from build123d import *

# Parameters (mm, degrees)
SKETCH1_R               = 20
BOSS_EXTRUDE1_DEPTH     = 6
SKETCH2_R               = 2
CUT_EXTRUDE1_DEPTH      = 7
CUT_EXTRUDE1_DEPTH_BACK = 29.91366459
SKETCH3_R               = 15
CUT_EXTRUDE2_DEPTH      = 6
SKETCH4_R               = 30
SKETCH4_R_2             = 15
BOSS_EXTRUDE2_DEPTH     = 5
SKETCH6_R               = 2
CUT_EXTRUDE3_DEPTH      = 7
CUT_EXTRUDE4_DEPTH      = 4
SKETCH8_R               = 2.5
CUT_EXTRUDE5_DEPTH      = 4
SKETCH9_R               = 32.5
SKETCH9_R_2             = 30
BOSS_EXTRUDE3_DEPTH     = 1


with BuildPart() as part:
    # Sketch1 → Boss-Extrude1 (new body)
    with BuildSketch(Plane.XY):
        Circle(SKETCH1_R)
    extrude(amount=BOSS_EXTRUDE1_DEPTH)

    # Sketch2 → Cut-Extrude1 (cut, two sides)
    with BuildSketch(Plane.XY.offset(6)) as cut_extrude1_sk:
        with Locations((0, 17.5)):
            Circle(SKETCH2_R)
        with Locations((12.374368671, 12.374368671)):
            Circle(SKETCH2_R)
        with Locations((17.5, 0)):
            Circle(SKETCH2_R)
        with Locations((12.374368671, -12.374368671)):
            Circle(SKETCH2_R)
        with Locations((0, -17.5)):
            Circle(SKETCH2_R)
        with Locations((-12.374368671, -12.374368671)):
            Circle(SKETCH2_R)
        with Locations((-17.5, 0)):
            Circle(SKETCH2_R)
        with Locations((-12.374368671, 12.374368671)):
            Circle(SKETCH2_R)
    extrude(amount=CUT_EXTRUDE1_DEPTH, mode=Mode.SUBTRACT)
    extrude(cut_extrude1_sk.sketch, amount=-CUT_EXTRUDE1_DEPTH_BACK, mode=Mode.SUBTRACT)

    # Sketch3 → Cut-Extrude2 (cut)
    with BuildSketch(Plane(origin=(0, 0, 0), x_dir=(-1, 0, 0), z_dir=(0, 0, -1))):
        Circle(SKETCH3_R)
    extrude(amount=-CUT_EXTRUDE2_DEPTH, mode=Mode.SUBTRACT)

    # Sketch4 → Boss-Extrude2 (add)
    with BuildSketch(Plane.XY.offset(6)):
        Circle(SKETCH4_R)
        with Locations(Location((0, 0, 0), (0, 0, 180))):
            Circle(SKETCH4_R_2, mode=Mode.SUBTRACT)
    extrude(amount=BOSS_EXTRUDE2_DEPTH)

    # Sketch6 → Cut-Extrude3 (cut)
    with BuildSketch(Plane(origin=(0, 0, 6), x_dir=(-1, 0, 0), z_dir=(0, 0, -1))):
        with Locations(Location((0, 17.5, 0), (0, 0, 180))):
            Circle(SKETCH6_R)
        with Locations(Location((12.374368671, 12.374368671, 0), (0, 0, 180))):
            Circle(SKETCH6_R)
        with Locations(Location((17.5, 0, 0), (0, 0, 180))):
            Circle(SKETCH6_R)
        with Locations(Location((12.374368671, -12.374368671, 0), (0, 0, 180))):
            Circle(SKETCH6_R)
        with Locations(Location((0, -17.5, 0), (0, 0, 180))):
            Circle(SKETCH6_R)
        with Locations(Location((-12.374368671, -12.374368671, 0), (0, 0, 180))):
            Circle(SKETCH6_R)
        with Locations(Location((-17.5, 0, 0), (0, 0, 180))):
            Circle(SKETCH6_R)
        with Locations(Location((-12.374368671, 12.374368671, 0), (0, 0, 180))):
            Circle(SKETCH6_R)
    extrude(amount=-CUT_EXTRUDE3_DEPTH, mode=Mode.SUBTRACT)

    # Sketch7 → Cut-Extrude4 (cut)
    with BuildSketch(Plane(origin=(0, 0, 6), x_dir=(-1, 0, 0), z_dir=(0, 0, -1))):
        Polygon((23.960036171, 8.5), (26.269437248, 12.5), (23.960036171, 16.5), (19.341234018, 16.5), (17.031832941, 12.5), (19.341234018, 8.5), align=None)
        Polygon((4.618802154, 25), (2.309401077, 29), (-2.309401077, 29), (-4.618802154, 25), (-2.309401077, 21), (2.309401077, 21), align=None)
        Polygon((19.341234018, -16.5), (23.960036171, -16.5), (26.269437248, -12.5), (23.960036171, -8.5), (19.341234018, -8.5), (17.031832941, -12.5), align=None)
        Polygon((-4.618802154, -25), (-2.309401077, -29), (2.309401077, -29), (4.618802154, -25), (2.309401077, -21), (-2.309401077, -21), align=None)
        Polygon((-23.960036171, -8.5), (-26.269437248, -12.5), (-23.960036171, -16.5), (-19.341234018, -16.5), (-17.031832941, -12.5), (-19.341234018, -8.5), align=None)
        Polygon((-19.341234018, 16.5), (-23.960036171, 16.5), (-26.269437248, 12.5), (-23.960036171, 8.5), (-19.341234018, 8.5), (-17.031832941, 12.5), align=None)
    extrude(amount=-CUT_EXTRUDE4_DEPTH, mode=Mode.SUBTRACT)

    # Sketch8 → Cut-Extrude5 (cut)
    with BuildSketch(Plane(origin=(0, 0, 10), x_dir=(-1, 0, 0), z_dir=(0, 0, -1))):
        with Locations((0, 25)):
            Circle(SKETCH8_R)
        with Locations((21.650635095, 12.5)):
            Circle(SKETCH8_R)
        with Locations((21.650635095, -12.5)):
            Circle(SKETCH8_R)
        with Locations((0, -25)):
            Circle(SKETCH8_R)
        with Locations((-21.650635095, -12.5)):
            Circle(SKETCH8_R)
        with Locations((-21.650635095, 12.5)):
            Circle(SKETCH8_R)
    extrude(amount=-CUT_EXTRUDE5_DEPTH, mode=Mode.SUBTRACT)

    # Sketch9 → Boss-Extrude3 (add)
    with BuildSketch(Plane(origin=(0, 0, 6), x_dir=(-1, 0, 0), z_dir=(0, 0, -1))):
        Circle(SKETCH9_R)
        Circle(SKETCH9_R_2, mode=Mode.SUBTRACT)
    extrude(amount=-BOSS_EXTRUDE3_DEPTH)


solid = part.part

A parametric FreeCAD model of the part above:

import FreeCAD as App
import Part
import Sketcher

V = App.Vector
Q = App.Units.Quantity

doc = App.newDocument("Part")
body = doc.addObject("PartDesign::Body", "Body")

# Sketch on XY plane
sketch1 = doc.addObject("Sketcher::SketchObject", "Sketch")
body.addObject(sketch1)
sketch1.AttachmentSupport = (doc.XY_Plane, [""])
sketch1.MapMode = "FlatFace"
sketch1.addGeometry(Part.Circle(V(0, 0, 0), V(0, 0, 1), 20), False)
sketch1.addConstraint([
    Sketcher.Constraint("Coincident", 0, 3, -1, 1),
    Sketcher.Constraint("Diameter", 0, 40.0),
])
pad1 = doc.addObject("PartDesign::Pad", "Pad")
body.addObject(pad1)
pad1.Profile = sketch1
pad1.Length = 6

# Sketch on XY plane
sketch2 = doc.addObject("Sketcher::SketchObject", "Sketch001")
body.addObject(sketch2)
sketch2.AttachmentSupport = (doc.XY_Plane, [""])
sketch2.MapMode = "FlatFace"
sketch2.AttachmentOffset = App.Placement(V(0, 0, 6), App.Rotation())
sketch2.addGeometry([
    Part.Circle(V(0, 17.5, 0), V(0, 0, 1), 2),  # 0
    Part.Circle(V(12.4, 12.4, 0), V(0, 0, 1), 2),  # 1
    Part.Circle(V(17.5, 0, 0), V(0, 0, 1), 2),  # 2
    Part.Circle(V(12.4, -12.4, 0), V(0, 0, 1), 2),  # 3
    Part.Circle(V(0, -17.5, 0), V(0, 0, 1), 2),  # 4
    Part.Circle(V(-12.4, -12.4, 0), V(0, 0, 1), 2),  # 5
    Part.Circle(V(-17.5, 0, 0), V(0, 0, 1), 2),  # 6
    Part.Circle(V(-12.4, 12.4, 0), V(0, 0, 1), 2),  # 7
], False)
sketch2.addConstraint([
    Sketcher.Constraint("Equal", 0, 1),
    Sketcher.Constraint("Equal", 1, 2),
    Sketcher.Constraint("Equal", 2, 3),
    Sketcher.Constraint("Equal", 3, 4),
    Sketcher.Constraint("Equal", 4, 5),
    Sketcher.Constraint("Equal", 5, 6),
    Sketcher.Constraint("Equal", 6, 7),
    Sketcher.Constraint("Symmetric", 0, 3, 4, 3, -1, 1),
    Sketcher.Constraint("Symmetric", 1, 3, 5, 3, -1, 1),
    Sketcher.Constraint("Symmetric", 2, 3, 6, 3, -1, 1),
    Sketcher.Constraint("Symmetric", 3, 3, 7, 3, -1, 1),
    Sketcher.Constraint("Symmetric", 3, 3, 5, 3, -2),
    Sketcher.Constraint("PointOnObject", 0, 3, -2),
    Sketcher.Constraint("PointOnObject", 2, 3, -1),
    Sketcher.Constraint("Diameter", 0, 4.0),
    Sketcher.Constraint("DistanceY", 4, 3, 0, 3, 35.0),
    Sketcher.Constraint("DistanceX", -1, 1, 2, 3, 17.5),
    Sketcher.Constraint("DistanceX", -1, 1, 1, 3, 12.374369),
    Sketcher.Constraint("DistanceY", -1, 1, 1, 3, 12.374369),
])
pocket1 = doc.addObject("PartDesign::Pocket", "Pocket")
body.addObject(pocket1)
pocket1.Profile = sketch2
pocket1.Type = "ThroughAll"
pocket1.Midplane = True

# Sketch on XY plane
sketch3 = doc.addObject("Sketcher::SketchObject", "Sketch002")
body.addObject(sketch3)
sketch3.AttachmentSupport = (doc.XY_Plane, [""])
sketch3.MapMode = "FlatFace"
sketch3.addGeometry(Part.Circle(V(0, 0, 0), V(0, 0, 1), 15), False)
sketch3.addConstraint([
    Sketcher.Constraint("Coincident", 0, 3, -1, 1),
    Sketcher.Constraint("Diameter", 0, 30.0),
])
pocket2 = doc.addObject("PartDesign::Pocket", "Pocket001")
body.addObject(pocket2)
pocket2.Profile = sketch3
pocket2.Length = 6
pocket2.Reversed = True

# Sketch on XY plane
sketch4 = doc.addObject("Sketcher::SketchObject", "Sketch003")
body.addObject(sketch4)
sketch4.AttachmentSupport = (doc.XY_Plane, [""])
sketch4.MapMode = "FlatFace"
sketch4.AttachmentOffset = App.Placement(V(0, 0, 6), App.Rotation())
sketch4.addGeometry([
    Part.Circle(V(0, 0, 0), V(0, 0, 1), 30),
    Part.Circle(V(0, 0, 0), V(0, 0, 1), 15),
], False)
sketch4.addConstraint([
    Sketcher.Constraint("Coincident", 0, 3, -1, 1),
    Sketcher.Constraint("Coincident", 1, 3, -1, 1),
    Sketcher.Constraint("Diameter", 0, 60.0),
    Sketcher.Constraint("Diameter", 1, 30.0),
])
pad2 = doc.addObject("PartDesign::Pad", "Pad001")
body.addObject(pad2)
pad2.Profile = sketch4
pad2.Length = 5

# Sketch on XY plane
sketch5 = doc.addObject("Sketcher::SketchObject", "Sketch004")
body.addObject(sketch5)
sketch5.AttachmentSupport = (doc.XY_Plane, [""])
sketch5.MapMode = "FlatFace"
sketch5.AttachmentOffset = App.Placement(V(0, 0, 6), App.Rotation())
sketch5.addGeometry([
    Part.Circle(V(0, 17.5, 0), V(0, 0, 1), 2),  # 0
    Part.Circle(V(-12.4, 12.4, 0), V(0, 0, 1), 2),  # 1
    Part.Circle(V(-17.5, 0, 0), V(0, 0, 1), 2),  # 2
    Part.Circle(V(-12.4, -12.4, 0), V(0, 0, 1), 2),  # 3
    Part.Circle(V(0, -17.5, 0), V(0, 0, 1), 2),  # 4
    Part.Circle(V(12.4, -12.4, 0), V(0, 0, 1), 2),  # 5
    Part.Circle(V(17.5, 0, 0), V(0, 0, 1), 2),  # 6
    Part.Circle(V(12.4, 12.4, 0), V(0, 0, 1), 2),  # 7
], False)
sketch5.addConstraint([
    Sketcher.Constraint("Equal", 0, 1),
    Sketcher.Constraint("Equal", 1, 2),
    Sketcher.Constraint("Equal", 2, 3),
    Sketcher.Constraint("Equal", 3, 4),
    Sketcher.Constraint("Equal", 4, 5),
    Sketcher.Constraint("Equal", 5, 6),
    Sketcher.Constraint("Equal", 6, 7),
    Sketcher.Constraint("Symmetric", 0, 3, 4, 3, -1, 1),
    Sketcher.Constraint("Symmetric", 1, 3, 5, 3, -1, 1),
    Sketcher.Constraint("Symmetric", 2, 3, 6, 3, -1, 1),
    Sketcher.Constraint("Symmetric", 3, 3, 7, 3, -1, 1),
    Sketcher.Constraint("Symmetric", 3, 3, 5, 3, -2),
    Sketcher.Constraint("PointOnObject", 0, 3, -2),
    Sketcher.Constraint("PointOnObject", 2, 3, -1),
    Sketcher.Constraint("Diameter", 0, 4.0),
    Sketcher.Constraint("DistanceY", 4, 3, 0, 3, 35.0),
    Sketcher.Constraint("DistanceX", 2, 3, -1, 1, 17.5),
    Sketcher.Constraint("DistanceX", 1, 3, -1, 1, 12.374369),
    Sketcher.Constraint("DistanceY", -1, 1, 1, 3, 12.374369),
])
pocket3 = doc.addObject("PartDesign::Pocket", "Pocket002")
body.addObject(pocket3)
pocket3.Profile = sketch5
pocket3.Length = 7
pocket3.Reversed = True

# Sketch on XY plane
sketch6 = doc.addObject("Sketcher::SketchObject", "Sketch005")
body.addObject(sketch6)
sketch6.AttachmentSupport = (doc.XY_Plane, [""])
sketch6.MapMode = "FlatFace"
sketch6.AttachmentOffset = App.Placement(V(0, 0, 6), App.Rotation())
sketch6.addGeometry([
    Part.LineSegment(V(-24, 8.5, 0), V(-26.3, 12.5, 0)),  # 0
    Part.LineSegment(V(-26.3, 12.5, 0), V(-24, 16.5, 0)),  # 1
    Part.LineSegment(V(-24, 16.5, 0), V(-19.3, 16.5, 0)),  # 2
    Part.LineSegment(V(-19.3, 16.5, 0), V(-17, 12.5, 0)),  # 3
    Part.LineSegment(V(-17, 12.5, 0), V(-19.3, 8.5, 0)),  # 4
    Part.LineSegment(V(-19.3, 8.5, 0), V(-24, 8.5, 0)),  # 5
    Part.LineSegment(V(-4.6, 25, 0), V(-2.3, 29, 0)),  # 6
    Part.LineSegment(V(-2.3, 29, 0), V(2.3, 29, 0)),  # 7
    Part.LineSegment(V(2.3, 29, 0), V(4.6, 25, 0)),  # 8
    Part.LineSegment(V(4.6, 25, 0), V(2.3, 21, 0)),  # 9
    Part.LineSegment(V(2.3, 21, 0), V(-2.3, 21, 0)),  # 10
    Part.LineSegment(V(-2.3, 21, 0), V(-4.6, 25, 0)),  # 11
    Part.LineSegment(V(-19.3, -16.5, 0), V(-24, -16.5, 0)),  # 12
    Part.LineSegment(V(-24, -16.5, 0), V(-26.3, -12.5, 0)),  # 13
    Part.LineSegment(V(-26.3, -12.5, 0), V(-24, -8.5, 0)),  # 14
    Part.LineSegment(V(-24, -8.5, 0), V(-19.3, -8.5, 0)),  # 15
    Part.LineSegment(V(-19.3, -8.5, 0), V(-17, -12.5, 0)),  # 16
    Part.LineSegment(V(-17, -12.5, 0), V(-19.3, -16.5, 0)),  # 17
    Part.LineSegment(V(4.6, -25, 0), V(2.3, -29, 0)),  # 18
    Part.LineSegment(V(2.3, -29, 0), V(-2.3, -29, 0)),  # 19
    Part.LineSegment(V(-2.3, -29, 0), V(-4.6, -25, 0)),  # 20
    Part.LineSegment(V(-4.6, -25, 0), V(-2.3, -21, 0)),  # 21
    Part.LineSegment(V(-2.3, -21, 0), V(2.3, -21, 0)),  # 22
    Part.LineSegment(V(2.3, -21, 0), V(4.6, -25, 0)),  # 23
    Part.LineSegment(V(24, -8.5, 0), V(26.3, -12.5, 0)),  # 24
    Part.LineSegment(V(26.3, -12.5, 0), V(24, -16.5, 0)),  # 25
    Part.LineSegment(V(24, -16.5, 0), V(19.3, -16.5, 0)),  # 26
    Part.LineSegment(V(19.3, -16.5, 0), V(17, -12.5, 0)),  # 27
    Part.LineSegment(V(17, -12.5, 0), V(19.3, -8.5, 0)),  # 28
    Part.LineSegment(V(19.3, -8.5, 0), V(24, -8.5, 0)),  # 29
    Part.LineSegment(V(19.3, 16.5, 0), V(24, 16.5, 0)),  # 30
    Part.LineSegment(V(24, 16.5, 0), V(26.3, 12.5, 0)),  # 31
    Part.LineSegment(V(26.3, 12.5, 0), V(24, 8.5, 0)),  # 32
    Part.LineSegment(V(24, 8.5, 0), V(19.3, 8.5, 0)),  # 33
    Part.LineSegment(V(19.3, 8.5, 0), V(17, 12.5, 0)),  # 34
    Part.LineSegment(V(17, 12.5, 0), V(19.3, 16.5, 0)),  # 35
], False)
sketch6.addConstraint([
    Sketcher.Constraint("Coincident", 0, 2, 1, 1),
    Sketcher.Constraint("Coincident", 1, 2, 2, 1),
    Sketcher.Constraint("Coincident", 2, 2, 3, 1),
    Sketcher.Constraint("Coincident", 3, 2, 4, 1),
    Sketcher.Constraint("Coincident", 4, 2, 5, 1),
    Sketcher.Constraint("Coincident", 5, 2, 0, 1),
    Sketcher.Constraint("Coincident", 6, 2, 7, 1),
    Sketcher.Constraint("Coincident", 7, 2, 8, 1),
    Sketcher.Constraint("Coincident", 8, 2, 9, 1),
    Sketcher.Constraint("Coincident", 9, 2, 10, 1),
    Sketcher.Constraint("Coincident", 10, 2, 11, 1),
    Sketcher.Constraint("Coincident", 11, 2, 6, 1),
    Sketcher.Constraint("Coincident", 12, 2, 13, 1),
    Sketcher.Constraint("Coincident", 13, 2, 14, 1),
    Sketcher.Constraint("Coincident", 14, 2, 15, 1),
    Sketcher.Constraint("Coincident", 15, 2, 16, 1),
    Sketcher.Constraint("Coincident", 16, 2, 17, 1),
    Sketcher.Constraint("Coincident", 17, 2, 12, 1),
    Sketcher.Constraint("Coincident", 18, 2, 19, 1),
    Sketcher.Constraint("Coincident", 19, 2, 20, 1),
    Sketcher.Constraint("Coincident", 20, 2, 21, 1),
    Sketcher.Constraint("Coincident", 21, 2, 22, 1),
    Sketcher.Constraint("Coincident", 22, 2, 23, 1),
    Sketcher.Constraint("Coincident", 23, 2, 18, 1),
    Sketcher.Constraint("Coincident", 24, 2, 25, 1),
    Sketcher.Constraint("Coincident", 25, 2, 26, 1),
    Sketcher.Constraint("Coincident", 26, 2, 27, 1),
    Sketcher.Constraint("Coincident", 27, 2, 28, 1),
    Sketcher.Constraint("Coincident", 28, 2, 29, 1),
    Sketcher.Constraint("Coincident", 29, 2, 24, 1),
    Sketcher.Constraint("Coincident", 30, 2, 31, 1),
    Sketcher.Constraint("Coincident", 31, 2, 32, 1),
    Sketcher.Constraint("Coincident", 32, 2, 33, 1),
    Sketcher.Constraint("Coincident", 33, 2, 34, 1),
    Sketcher.Constraint("Coincident", 34, 2, 35, 1),
    Sketcher.Constraint("Coincident", 35, 2, 30, 1),
    Sketcher.Constraint("Horizontal", 2),
    Sketcher.Constraint("Horizontal", 5),
    Sketcher.Constraint("Horizontal", 7),
    Sketcher.Constraint("Horizontal", 10),
    Sketcher.Constraint("Horizontal", 12),
    Sketcher.Constraint("Horizontal", 15),
    Sketcher.Constraint("Horizontal", 19),
    Sketcher.Constraint("Horizontal", 22),
    Sketcher.Constraint("Horizontal", 26),
    Sketcher.Constraint("Horizontal", 29),
    Sketcher.Constraint("Horizontal", 30),
    Sketcher.Constraint("Horizontal", 33),
    Sketcher.Constraint("Symmetric", 6, 2, 18, 2, -1, 1),
    Sketcher.Constraint("Symmetric", 8, 2, 20, 2, -1, 1),
    Sketcher.Constraint("Symmetric", 9, 2, 21, 2, -1, 1),
    Sketcher.Constraint("Symmetric", 11, 2, 23, 2, -1, 1),
    Sketcher.Constraint("Symmetric", 0, 2, 24, 2, -1, 1),
    Sketcher.Constraint("Symmetric", 1, 2, 25, 2, -1, 1),
    Sketcher.Constraint("Symmetric", 3, 2, 27, 2, -1, 1),
    Sketcher.Constraint("Symmetric", 4, 2, 28, 2, -1, 1),
    Sketcher.Constraint("Symmetric", 12, 2, 30, 2, -1, 1),
    Sketcher.Constraint("Symmetric", 13, 2, 31, 2, -1, 1),
    Sketcher.Constraint("Symmetric", 14, 2, 32, 2, -1, 1),
    Sketcher.Constraint("Symmetric", 16, 2, 34, 2, -1, 1),
    Sketcher.Constraint("Symmetric", 8, 2, 11, 2, -2),
    Sketcher.Constraint("Symmetric", 13, 2, 24, 2, -2),
    Sketcher.Constraint("Symmetric", 12, 2, 25, 2, -2),
    Sketcher.Constraint("Symmetric", 16, 2, 27, 2, -2),
    Sketcher.Constraint("Symmetric", 15, 2, 28, 2, -2),
    Sketcher.Constraint("Parallel", 0, 3),
    Sketcher.Constraint("Parallel", 1, 4),
    Sketcher.Constraint("Parallel", 4, 6),
    Sketcher.Constraint("Parallel", 3, 8),
    Sketcher.Constraint("Parallel", 6, 9),
    Sketcher.Constraint("Parallel", 8, 11),
    Sketcher.Constraint("Parallel", 11, 13),
    Sketcher.Constraint("Parallel", 9, 14),
    Sketcher.Constraint("Parallel", 14, 17),
    Sketcher.Constraint("Parallel", 16, 20),
    Sketcher.Constraint("Parallel", 20, 23),
    Sketcher.Constraint("Parallel", 23, 24),
    Sketcher.Constraint("Parallel", 24, 27),
    Sketcher.Constraint("Parallel", 31, 34),
    Sketcher.Constraint("Parallel", 32, 35),
    Sketcher.Constraint("Horizontal", 0, 2, 3, 2),
    Sketcher.Constraint("Vertical", 2, 2, 4, 2),
    Sketcher.Constraint("Vertical", 7, 2, 9, 2),
    Sketcher.Constraint("Equal", 5, 7),
    Sketcher.Constraint("Equal", 4, 6),
    Sketcher.Constraint("Angle", 0, Q("120 deg")),
    Sketcher.Constraint("DistanceY", -1, 1, 6, 2, 29.0),
    Sketcher.Constraint("DistanceY", -1, 1, 8, 2, 25.0),
    Sketcher.Constraint("DistanceY", 12, 2, 5, 2, 25.0),
    Sketcher.Constraint("DistanceX", 6, 2, -1, 1, 2.309401),
    Sketcher.Constraint("DistanceX", 3, 2, 6, 2, 14.722432),
])
pocket4 = doc.addObject("PartDesign::Pocket", "Pocket003")
body.addObject(pocket4)
pocket4.Profile = sketch6
pocket4.Length = 4
pocket4.Reversed = True

# Sketch on XY plane
sketch7 = doc.addObject("Sketcher::SketchObject", "Sketch006")
body.addObject(sketch7)
sketch7.AttachmentSupport = (doc.XY_Plane, [""])
sketch7.MapMode = "FlatFace"
sketch7.AttachmentOffset = App.Placement(V(0, 0, 10), App.Rotation())
sketch7.addGeometry([
    Part.Circle(V(0, 25, 0), V(0, 0, 1), 2.5),  # 0
    Part.Circle(V(-21.7, 12.5, 0), V(0, 0, 1), 2.5),  # 1
    Part.Circle(V(-21.7, -12.5, 0), V(0, 0, 1), 2.5),  # 2
    Part.Circle(V(0, -25, 0), V(0, 0, 1), 2.5),  # 3
    Part.Circle(V(21.7, -12.5, 0), V(0, 0, 1), 2.5),  # 4
    Part.Circle(V(21.7, 12.5, 0), V(0, 0, 1), 2.5),  # 5
], False)
sketch7.addConstraint([
    Sketcher.Constraint("Equal", 0, 1),
    Sketcher.Constraint("Equal", 1, 2),
    Sketcher.Constraint("Equal", 2, 3),
    Sketcher.Constraint("Equal", 3, 4),
    Sketcher.Constraint("Equal", 4, 5),
    Sketcher.Constraint("Symmetric", 0, 3, 3, 3, -1, 1),
    Sketcher.Constraint("Symmetric", 1, 3, 4, 3, -1, 1),
    Sketcher.Constraint("Symmetric", 2, 3, 5, 3, -1, 1),
    Sketcher.Constraint("Symmetric", 2, 3, 4, 3, -2),
    Sketcher.Constraint("PointOnObject", 0, 3, -2),
    Sketcher.Constraint("Diameter", 0, 5.0),
    Sketcher.Constraint("DistanceY", -1, 1, 0, 3, 25.0),
    Sketcher.Constraint("DistanceY", 2, 3, 1, 3, 25.0),
    Sketcher.Constraint("DistanceX", 2, 3, 4, 3, 43.30127),
])
pocket5 = doc.addObject("PartDesign::Pocket", "Pocket004")
body.addObject(pocket5)
pocket5.Profile = sketch7
pocket5.Length = 4
pocket5.Reversed = True

# Sketch on XY plane
sketch8 = doc.addObject("Sketcher::SketchObject", "Sketch007")
body.addObject(sketch8)
sketch8.AttachmentSupport = (doc.XY_Plane, [""])
sketch8.MapMode = "FlatFace"
sketch8.AttachmentOffset = App.Placement(V(0, 0, 6), App.Rotation())
sketch8.addGeometry([
    Part.Circle(V(0, 0, 0), V(0, 0, 1), 32),
    Part.Circle(V(0, 0, 0), V(0, 0, 1), 30),
], False)
sketch8.addConstraint([
    Sketcher.Constraint("Coincident", 0, 3, -1, 1),
    Sketcher.Constraint("Coincident", 1, 3, -1, 1),
    Sketcher.Constraint("Diameter", 0, 65.0),
    Sketcher.Constraint("Diameter", 1, 60.0),
])
pad3 = doc.addObject("PartDesign::Pad", "Pad002")
body.addObject(pad3)
pad3.Profile = sketch8
pad3.Length = 1

doc.recompute()
